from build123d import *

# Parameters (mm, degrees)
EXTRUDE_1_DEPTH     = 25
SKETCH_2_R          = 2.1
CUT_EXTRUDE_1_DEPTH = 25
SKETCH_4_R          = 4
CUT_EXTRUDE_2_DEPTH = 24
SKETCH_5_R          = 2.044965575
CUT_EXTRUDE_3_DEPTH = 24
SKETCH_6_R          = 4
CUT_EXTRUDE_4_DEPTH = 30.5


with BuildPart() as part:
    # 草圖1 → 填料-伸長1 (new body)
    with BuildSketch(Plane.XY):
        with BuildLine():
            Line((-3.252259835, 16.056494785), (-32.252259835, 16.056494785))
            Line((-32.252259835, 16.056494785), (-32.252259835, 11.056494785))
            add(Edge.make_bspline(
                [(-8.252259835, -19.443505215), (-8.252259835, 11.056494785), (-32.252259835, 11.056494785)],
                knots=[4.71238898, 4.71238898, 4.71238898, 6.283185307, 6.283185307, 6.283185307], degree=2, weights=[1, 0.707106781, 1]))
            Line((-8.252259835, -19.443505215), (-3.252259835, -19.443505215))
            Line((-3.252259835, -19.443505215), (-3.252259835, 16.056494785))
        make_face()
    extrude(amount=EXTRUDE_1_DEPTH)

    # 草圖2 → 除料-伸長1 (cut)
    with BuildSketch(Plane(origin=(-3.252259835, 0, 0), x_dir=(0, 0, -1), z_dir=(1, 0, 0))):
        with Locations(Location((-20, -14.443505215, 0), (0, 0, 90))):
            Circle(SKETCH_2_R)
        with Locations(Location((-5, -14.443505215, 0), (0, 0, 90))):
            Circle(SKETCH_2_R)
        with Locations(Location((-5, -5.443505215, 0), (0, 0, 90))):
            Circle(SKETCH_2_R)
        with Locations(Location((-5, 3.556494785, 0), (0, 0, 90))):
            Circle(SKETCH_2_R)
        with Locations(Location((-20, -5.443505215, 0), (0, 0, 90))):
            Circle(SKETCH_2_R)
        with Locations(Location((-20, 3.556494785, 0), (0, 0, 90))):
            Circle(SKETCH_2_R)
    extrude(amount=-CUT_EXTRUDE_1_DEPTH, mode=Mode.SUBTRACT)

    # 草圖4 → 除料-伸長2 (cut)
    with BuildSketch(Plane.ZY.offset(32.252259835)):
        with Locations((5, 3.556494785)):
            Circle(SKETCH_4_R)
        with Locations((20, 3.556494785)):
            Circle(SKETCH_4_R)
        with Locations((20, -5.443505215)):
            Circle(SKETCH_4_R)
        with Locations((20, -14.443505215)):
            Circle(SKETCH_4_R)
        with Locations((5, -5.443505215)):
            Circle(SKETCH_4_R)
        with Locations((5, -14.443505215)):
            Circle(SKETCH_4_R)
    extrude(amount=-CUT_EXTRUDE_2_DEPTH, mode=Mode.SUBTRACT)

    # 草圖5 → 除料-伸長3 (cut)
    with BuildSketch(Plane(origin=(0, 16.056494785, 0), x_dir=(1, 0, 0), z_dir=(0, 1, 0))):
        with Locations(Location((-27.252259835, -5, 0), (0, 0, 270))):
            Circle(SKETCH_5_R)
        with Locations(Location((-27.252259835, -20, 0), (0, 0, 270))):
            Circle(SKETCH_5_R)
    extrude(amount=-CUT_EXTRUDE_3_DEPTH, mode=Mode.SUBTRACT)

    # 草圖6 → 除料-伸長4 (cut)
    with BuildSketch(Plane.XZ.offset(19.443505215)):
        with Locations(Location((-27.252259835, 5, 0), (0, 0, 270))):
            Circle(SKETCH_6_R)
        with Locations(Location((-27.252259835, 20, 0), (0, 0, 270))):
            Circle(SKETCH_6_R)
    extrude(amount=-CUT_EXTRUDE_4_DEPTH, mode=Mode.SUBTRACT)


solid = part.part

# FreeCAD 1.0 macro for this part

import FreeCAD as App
import Part
import Sketcher

doc = App.newDocument("Part")
body = doc.addObject("PartDesign::Body", "Body")

# Sketch on XY plane
sketch1 = body.newObject("Sketcher::SketchObject", "Sketch")
sketch1.AttachmentSupport = (doc.getObject("XY_Plane"), [""])
sketch1.MapMode = "FlatFace"
sketch1.addGeometry([
    Part.LineSegment(App.Vector(-3.25226, 16.056495, 0), App.Vector(-32.25226, 16.056495, 0)),  # 0
    Part.LineSegment(App.Vector(-32.25226, 16.056495, 0), App.Vector(-32.25226, 11.056495, 0)),  # 1
    Part.BSplineCurve([App.Vector(-8.25226, -19.443505, 0), App.Vector(-8.25226, 11.056495, 0), App.Vector(-32.25226, 11.056495, 0)], [3, 3], [4.71238898, 6.283185307], False, 2, [1, 0.707106781, 1], False),  # 2
    Part.LineSegment(App.Vector(-8.25226, -19.443505, 0), App.Vector(-3.25226, -19.443505, 0)),  # 3
    Part.LineSegment(App.Vector(-3.25226, -19.443505, 0), App.Vector(-3.25226, 16.056495, 0)),  # 4
], False)
sketch1.addConstraint([
    Sketcher.Constraint("Block", 2),
    Sketcher.Constraint("Coincident", 0, 2, 1, 1),
    Sketcher.Constraint("Coincident", 1, 2, 2, 2),
    Sketcher.Constraint("Coincident", 2, 1, 3, 1),
    Sketcher.Constraint("Coincident", 3, 2, 4, 1),
    Sketcher.Constraint("Coincident", 4, 2, 0, 1),
    Sketcher.Constraint("Horizontal", 0),
    Sketcher.Constraint("Vertical", 1),
    Sketcher.Constraint("Horizontal", 3),
    Sketcher.Constraint("Vertical", 4),
    Sketcher.Constraint("Equal", 3, 1),
    Sketcher.Constraint("DistanceX", 0, 2, 0, 1, 29.0),
])
pad1 = body.newObject("PartDesign::Pad", "Pad")
pad1.Profile = sketch1
pad1.Length = 25

# Sketch on YZ plane
sketch2 = body.newObject("Sketcher::SketchObject", "Sketch001")
sketch2.AttachmentSupport = (doc.getObject("YZ_Plane"), [""])
sketch2.MapMode = "FlatFace"
sketch2.AttachmentOffset = App.Placement(App.Vector(0, 0, -3.25226), App.Rotation())
sketch2.addGeometry([
    Part.Circle(App.Vector(-14.4, 20, 0), App.Vector(0, 0, 1), 2.1),  # 0
    Part.Circle(App.Vector(-14.4, 5, 0), App.Vector(0, 0, 1), 2.1),  # 1
    Part.Circle(App.Vector(-5.4, 5, 0), App.Vector(0, 0, 1), 2.1),  # 2
    Part.Circle(App.Vector(3.6, 5, 0), App.Vector(0, 0, 1), 2.1),  # 3
    Part.Circle(App.Vector(-5.4, 20, 0), App.Vector(0, 0, 1), 2.1),  # 4
    Part.Circle(App.Vector(3.6, 20, 0), App.Vector(0, 0, 1), 2.1),  # 5
], False)
sketch2.addConstraint([
    Sketcher.Constraint("Equal", 0, 1),
    Sketcher.Constraint("Equal", 1, 2),
    Sketcher.Constraint("Equal", 2, 3),
    Sketcher.Constraint("Equal", 3, 4),
    Sketcher.Constraint("Equal", 4, 5),
    Sketcher.Constraint("Horizontal", 1, 3, 2, 3),
    Sketcher.Constraint("Horizontal", 2, 3, 3, 3),
    Sketcher.Constraint("Horizontal", 0, 3, 4, 3),
    Sketcher.Constraint("Horizontal", 4, 3, 5, 3),
    Sketcher.Constraint("Vertical", 0, 3, 1, 3),
    Sketcher.Constraint("Vertical", 2, 3, 4, 3),
    Sketcher.Constraint("Vertical", 3, 3, 5, 3),
    Sketcher.Constraint("Diameter", 0, 4.2),
    Sketcher.Constraint("DistanceY", -1, 1, 0, 3, 20.0),
    Sketcher.Constraint("DistanceY", -1, 1, 1, 3, 5.0),
    Sketcher.Constraint("DistanceX", 1, 3, 2, 3, 9.0),
    Sketcher.Constraint("DistanceX", 2, 3, 3, 3, 9.0),
    Sketcher.Constraint("DistanceX", 0, 3, -1, 1, 14.443505),
])
pocket1 = body.newObject("PartDesign::Pocket", "Pocket")
pocket1.Profile = sketch2
pocket1.Length = 25

# Sketch on YZ plane
sketch3 = body.newObject("Sketcher::SketchObject", "Sketch002")
sketch3.AttachmentSupport = (doc.getObject("YZ_Plane"), [""])
sketch3.MapMode = "FlatFace"
sketch3.AttachmentOffset = App.Placement(App.Vector(0, 0, -32.25226), App.Rotation())
sketch3.addGeometry([
    Part.Circle(App.Vector(3.6, 5, 0), App.Vector(0, 0, 1), 4),  # 0
    Part.Circle(App.Vector(3.6, 20, 0), App.Vector(0, 0, 1), 4),  # 1
    Part.Circle(App.Vector(-5.4, 20, 0), App.Vector(0, 0, 1), 4),  # 2
    Part.Circle(App.Vector(-14.4, 20, 0), App.Vector(0, 0, 1), 4),  # 3
    Part.Circle(App.Vector(-5.4, 5, 0), App.Vector(0, 0, 1), 4),  # 4
    Part.Circle(App.Vector(-14.4, 5, 0), App.Vector(0, 0, 1), 4),  # 5
], False)
sketch3.addConstraint([
    Sketcher.Constraint("Equal", 0, 1),
    Sketcher.Constraint("Equal", 1, 2),
    Sketcher.Constraint("Equal", 2, 3),
    Sketcher.Constraint("Equal", 3, 4),
    Sketcher.Constraint("Equal", 4, 5),
    Sketcher.Constraint("Horizontal", 1, 3, 2, 3),
    Sketcher.Constraint("Horizontal", 2, 3, 3, 3),
    Sketcher.Constraint("Horizontal", 0, 3, 4, 3),
    Sketcher.Constraint("Horizontal", 4, 3, 5, 3),
    Sketcher.Constraint("Vertical", 0, 3, 1, 3),
    Sketcher.Constraint("Vertical", 2, 3, 4, 3),
    Sketcher.Constraint("Vertical", 3, 3, 5, 3),
    Sketcher.Constraint("Diameter", 0, 8.0),
    Sketcher.Constraint("DistanceY", -1, 1, 0, 3, 5.0),
    Sketcher.Constraint("DistanceY", -1, 1, 1, 3, 20.0),
    Sketcher.Constraint("DistanceX", 2, 3, 1, 3, 9.0),
    Sketcher.Constraint("DistanceX", 3, 3, 2, 3, 9.0),
    Sketcher.Constraint("DistanceX", -1, 1, 0, 3, 3.556495),
])
pocket2 = body.newObject("PartDesign::Pocket", "Pocket001")
pocket2.Profile = sketch3
pocket2.Length = 24
pocket2.Reversed = True

# Sketch on XZ plane
sketch4 = body.newObject("Sketcher::SketchObject", "Sketch003")
sketch4.AttachmentSupport = (doc.getObject("XZ_Plane"), [""])
sketch4.MapMode = "FlatFace"
sketch4.AttachmentOffset = App.Placement(App.Vector(0, 0, -16.056495), App.Rotation())
sketch4.addGeometry([
    Part.Circle(App.Vector(-27.3, 5, 0), App.Vector(0, 0, 1), 2),
    Part.Circle(App.Vector(-27.3, 20, 0), App.Vector(0, 0, 1), 2),
], False)
sketch4.addConstraint([
    Sketcher.Constraint("Equal", 0, 1),
    Sketcher.Constraint("Vertical", 0, 3, 1, 3),
    Sketcher.Constraint("DistanceY", -1, 1, 0, 3, 5.0),
    Sketcher.Constraint("DistanceY", -1, 1, 1, 3, 20.0),
    Sketcher.Constraint("Diameter", 0, 4.089931),
    Sketcher.Constraint("DistanceX", 0, 3, -1, 1, 27.25226),
])
pocket3 = body.newObject("PartDesign::Pocket", "Pocket002")
pocket3.Profile = sketch4
pocket3.Length = 24
pocket3.Reversed = True

# Sketch on XZ plane
sketch5 = body.newObject("Sketcher::SketchObject", "Sketch004")
sketch5.AttachmentSupport = (doc.getObject("XZ_Plane"), [""])
sketch5.MapMode = "FlatFace"
sketch5.AttachmentOffset = App.Placement(App.Vector(0, 0, 19.443505), App.Rotation())
sketch5.addGeometry([
    Part.Circle(App.Vector(-27.3, 5, 0), App.Vector(0, 0, 1), 4),
    Part.Circle(App.Vector(-27.3, 20, 0), App.Vector(0, 0, 1), 4),
], False)
sketch5.addConstraint([
    Sketcher.Constraint("Equal", 0, 1),
    Sketcher.Constraint("Vertical", 0, 3, 1, 3),
    Sketcher.Constraint("Diameter", 0, 8.0),
    Sketcher.Constraint("DistanceY", -1, 1, 0, 3, 5.0),
    Sketcher.Constraint("DistanceY", -1, 1, 1, 3, 20.0),
    Sketcher.Constraint("DistanceX", 0, 3, -1, 1, 27.25226),
])
pocket4 = body.newObject("PartDesign::Pocket", "Pocket003")
pocket4.Profile = sketch5
pocket4.Length = 30.5

doc.recompute()
